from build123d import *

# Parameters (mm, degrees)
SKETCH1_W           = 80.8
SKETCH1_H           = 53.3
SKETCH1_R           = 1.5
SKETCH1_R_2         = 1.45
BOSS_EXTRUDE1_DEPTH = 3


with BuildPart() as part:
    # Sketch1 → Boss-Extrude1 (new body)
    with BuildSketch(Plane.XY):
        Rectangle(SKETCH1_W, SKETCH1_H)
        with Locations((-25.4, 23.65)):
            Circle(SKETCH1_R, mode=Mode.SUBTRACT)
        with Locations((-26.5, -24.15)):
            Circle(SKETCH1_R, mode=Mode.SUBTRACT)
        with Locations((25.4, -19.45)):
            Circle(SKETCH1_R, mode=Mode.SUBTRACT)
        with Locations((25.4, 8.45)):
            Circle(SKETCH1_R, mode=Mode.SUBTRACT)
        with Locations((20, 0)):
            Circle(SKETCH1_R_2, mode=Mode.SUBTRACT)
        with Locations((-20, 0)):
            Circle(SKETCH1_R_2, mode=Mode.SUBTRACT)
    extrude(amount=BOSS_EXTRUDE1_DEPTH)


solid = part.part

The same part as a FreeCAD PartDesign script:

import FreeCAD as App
import Part
import Sketcher
Q = App.Units.Quantity

doc = App.newDocument("Part")
body = doc.addObject("PartDesign::Body", "Body")

sketch1 = body.newObject("Sketcher::SketchObject", "Sketch")
sketch1.AttachmentSupport = (doc.getObject("XY_Plane"), [""])
sketch1.MapMode = "FlatFace"
sketch1.addGeometry(Part.LineSegment(App.Vector(-40.4, 26.6, 0), App.Vector(-40.4, -26.6, 0)), False)
sketch1.addGeometry(Part.LineSegment(App.Vector(-40.4, -26.6, 0), App.Vector(40.4, -26.6, 0)), False)
sketch1.addGeometry(Part.LineSegment(App.Vector(40.4, -26.6, 0), App.Vector(40.4, 26.6, 0)), False)
sketch1.addGeometry(Part.LineSegment(App.Vector(40.4, 26.6, 0), App.Vector(-40.4, 26.6, 0)), False)
sketch1.addGeometry(Part.Circle(App.Vector(-26.5, -24.1, 0), App.Vector(0, 0, 1), 1.5), False)
sketch1.addGeometry(Part.Circle(App.Vector(25.4, -19.4, 0), App.Vector(0, 0, 1), 1.5), False)
sketch1.addGeometry(Part.Circle(App.Vector(-20, 0, 0), App.Vector(0, 0, 1), 1.4), False)
sketch1.addGeometry(Part.Circle(App.Vector(-25.4, 23.6, 0), App.Vector(0, 0, 1), 1.5), False)
sketch1.addGeometry(Part.Circle(App.Vector(20, 0, 0), App.Vector(0, 0, 1), 1.4), False)
sketch1.addGeometry(Part.Circle(App.Vector(25.4, 8.4, 0), App.Vector(0, 0, 1), 1.5), False)
sketch1.addConstraint(Sketcher.Constraint("Coincident", 0, 2, 1, 1))
sketch1.addConstraint(Sketcher.Constraint("Coincident", 1, 2, 2, 1))
sketch1.addConstraint(Sketcher.Constraint("Coincident", 2, 2, 3, 1))
sketch1.addConstraint(Sketcher.Constraint("Coincident", 3, 2, 0, 1))
sketch1.addConstraint(Sketcher.Constraint("Vertical", 0))
sketch1.addConstraint(Sketcher.Constraint("Horizontal", 1))
sketch1.addConstraint(Sketcher.Constraint("Vertical", 2))
sketch1.addConstraint(Sketcher.Constraint("Horizontal", 3))
sketch1.addConstraint(Sketcher.Constraint("Equal", 4, 5))
sketch1.addConstraint(Sketcher.Constraint("Equal", 5, 7))
sketch1.addConstraint(Sketcher.Constraint("Equal", 6, 8))
sketch1.addConstraint(Sketcher.Constraint("Equal", 7, 9))
sketch1.addConstraint(Sketcher.Constraint("Symmetric", 6, 3, 8, 3, -1, 1))
sketch1.addConstraint(Sketcher.Constraint("Symmetric", 0, 2, 2, 2, -1, 1))
sketch1.addConstraint(Sketcher.Constraint("PointOnObject", 6, 3, -1))
sketch1.addConstraint(Sketcher.Constraint("Vertical", 5, 3, 9, 3))
sketch1.addConstraint(Sketcher.Constraint("Diameter", 4, Q("3 mm")))
sketch1.addConstraint(Sketcher.Constraint("Diameter", 6, Q("2.9 mm")))
sketch1.addConstraint(Sketcher.Constraint("DistanceX", 1, 1, 1, 2, Q("80.8 mm")))
sketch1.addConstraint(Sketcher.Constraint("DistanceY", 0, 2, 0, 1, Q("53.3 mm")))
sketch1.addConstraint(Sketcher.Constraint("DistanceX", 6, 3, -1, 1, Q("20 mm")))
sketch1.addConstraint(Sketcher.Constraint("DistanceX", 0, 2, 7, 3, Q("15 mm")))
sketch1.addConstraint(Sketcher.Constraint("DistanceX", 5, 3, 1, 2, Q("15 mm")))
sketch1.addConstraint(Sketcher.Constraint("DistanceY", 7, 3, 2, 2, Q("3 mm")))
sketch1.addConstraint(Sketcher.Constraint("DistanceX", 4, 3, -1, 1, Q("26.5 mm")))
sketch1.addConstraint(Sketcher.Constraint("DistanceY", 4, 3, 5, 3, Q("4.7 mm")))
sketch1.addConstraint(Sketcher.Constraint("DistanceY", 4, 3, 7, 3, Q("47.8 mm")))
sketch1.addConstraint(Sketcher.Constraint("DistanceY", 5, 3, 9, 3, Q("27.9 mm")))
pad1 = body.newObject("PartDesign::Pad", "Pad")
pad1.Profile = sketch1
pad1.Length = 3

doc.recompute()
